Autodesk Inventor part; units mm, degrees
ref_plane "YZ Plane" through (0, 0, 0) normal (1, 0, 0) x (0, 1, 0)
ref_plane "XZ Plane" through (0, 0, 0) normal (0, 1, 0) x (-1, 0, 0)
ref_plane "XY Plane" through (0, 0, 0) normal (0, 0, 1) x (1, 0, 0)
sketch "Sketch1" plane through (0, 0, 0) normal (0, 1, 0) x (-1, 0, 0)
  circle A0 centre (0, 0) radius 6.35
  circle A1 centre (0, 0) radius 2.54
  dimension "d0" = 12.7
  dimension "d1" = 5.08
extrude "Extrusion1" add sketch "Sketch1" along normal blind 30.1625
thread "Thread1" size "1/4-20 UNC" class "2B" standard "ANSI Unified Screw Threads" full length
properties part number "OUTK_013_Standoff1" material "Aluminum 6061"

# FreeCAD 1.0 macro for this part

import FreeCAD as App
import Part
import Sketcher
from FreeCAD import Vector
Q = App.Units.Quantity

doc = App.newDocument("Part")
body = doc.addObject("PartDesign::Body", "Body")

# Sketch on XZ plane
sketch1 = body.newObject("Sketcher::SketchObject", "Sketch")
sketch1.AttachmentSupport = (doc.getObject("XZ_Plane"), [""])
sketch1.MapMode = "FlatFace"
sketch1.addGeometry([
    Part.Circle(Vector(0, 0, 0), Vector(0, 0, 1), 6.3),
    Part.Circle(Vector(0, 0, 0), Vector(0, 0, 1), 2.5),
], False)
sketch1.addConstraint([
    Sketcher.Constraint("Coincident", 0, 3, -1, 1),
    Sketcher.Constraint("Coincident", 1, 3, -1, 1),
    Sketcher.Constraint("Diameter", 0, Q("0.5 in")),
    Sketcher.Constraint("Diameter", 1, Q("0.2 in")),
])
pad1 = body.newObject("PartDesign::Pad", "Pad")
pad1.Profile = sketch1
pad1.Length = Q("1.1875 in")
pad1.Reversed = True

doc.recompute()
